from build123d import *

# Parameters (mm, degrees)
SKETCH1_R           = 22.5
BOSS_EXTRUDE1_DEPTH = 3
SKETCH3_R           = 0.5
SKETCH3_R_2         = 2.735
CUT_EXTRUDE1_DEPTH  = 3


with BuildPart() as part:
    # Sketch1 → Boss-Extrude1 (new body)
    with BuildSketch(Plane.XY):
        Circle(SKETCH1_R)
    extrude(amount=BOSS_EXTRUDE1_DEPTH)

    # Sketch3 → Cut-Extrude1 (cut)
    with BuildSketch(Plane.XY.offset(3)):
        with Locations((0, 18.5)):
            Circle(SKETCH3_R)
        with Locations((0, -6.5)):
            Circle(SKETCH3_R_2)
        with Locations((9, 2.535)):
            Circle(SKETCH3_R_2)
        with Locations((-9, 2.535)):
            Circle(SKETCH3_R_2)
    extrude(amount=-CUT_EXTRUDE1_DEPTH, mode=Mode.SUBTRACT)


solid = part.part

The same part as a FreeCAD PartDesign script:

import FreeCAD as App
import Part
import Sketcher

V = App.Vector
Q = App.Units.Quantity

doc = App.newDocument("Part")
body = doc.addObject("PartDesign::Body", "Body")

# Sketch on XY plane
sketch1 = doc.addObject("Sketcher::SketchObject", "Sketch")
body.addObject(sketch1)
sketch1.AttachmentSupport = (doc.XY_Plane, [""])
sketch1.MapMode = "FlatFace"
sketch1.addGeometry(Part.Circle(V(0, 0, 0), V(0, 0, 1), 22), False)
sketch1.addConstraint(Sketcher.Constraint("Coincident", 0, 3, -1, 1))
sketch1.addConstraint(Sketcher.Constraint("Diameter", 0, Q("45 mm")))
pad1 = doc.addObject("PartDesign::Pad", "Pad")
body.addObject(pad1)
pad1.Profile = sketch1
pad1.Length = 3

# Sketch on XY plane
sketch2 = doc.addObject("Sketcher::SketchObject", "Sketch001")
body.addObject(sketch2)
sketch2.AttachmentSupport = (doc.XY_Plane, [""])
sketch2.MapMode = "FlatFace"
sketch2.AttachmentOffset = App.Placement(V(0, 0, 3), App.Rotation())
sketch2.addGeometry(Part.Circle(V(0, 18.5, 0), V(0, 0, 1), 0.5), False)
sketch2.addGeometry(Part.Circle(V(0, -6.5, 0), V(0, 0, 1), 2.7), False)
sketch2.addGeometry(Part.Circle(V(9, 2.5, 0), V(0, 0, 1), 2.7), False)
sketch2.addGeometry(Part.Circle(V(-9, 2.5, 0), V(0, 0, 1), 2.7), False)
sketch2.addConstraint(Sketcher.Constraint("Equal", 1, 2))
sketch2.addConstraint(Sketcher.Constraint("Equal", 2, 3))
sketch2.addConstraint(Sketcher.Constraint("Symmetric", 2, 3, 3, 3, -2))
sketch2.addConstraint(Sketcher.Constraint("PointOnObject", 0, 3, -2))
sketch2.addConstraint(Sketcher.Constraint("PointOnObject", 1, 3, -2))
sketch2.addConstraint(Sketcher.Constraint("Diameter", 0, Q("1 mm")))
sketch2.addConstraint(Sketcher.Constraint("Diameter", 1, Q("5.47 mm")))
sketch2.addConstraint(Sketcher.Constraint("DistanceX", -1, 1, 2, 3, Q("9 mm")))
sketch2.addConstraint(Sketcher.Constraint("DistanceY", 1, 3, 0, 3, Q("25 mm")))
sketch2.addConstraint(Sketcher.Constraint("DistanceY", -1, 1, 0, 3, Q("18.5 mm")))
sketch2.addConstraint(Sketcher.Constraint("DistanceY", -1, 1, 2, 3, Q("2.535 mm")))
pocket1 = doc.addObject("PartDesign::Pocket", "Pocket")
body.addObject(pocket1)
pocket1.Profile = sketch2
pocket1.Length = 3

doc.recompute()
